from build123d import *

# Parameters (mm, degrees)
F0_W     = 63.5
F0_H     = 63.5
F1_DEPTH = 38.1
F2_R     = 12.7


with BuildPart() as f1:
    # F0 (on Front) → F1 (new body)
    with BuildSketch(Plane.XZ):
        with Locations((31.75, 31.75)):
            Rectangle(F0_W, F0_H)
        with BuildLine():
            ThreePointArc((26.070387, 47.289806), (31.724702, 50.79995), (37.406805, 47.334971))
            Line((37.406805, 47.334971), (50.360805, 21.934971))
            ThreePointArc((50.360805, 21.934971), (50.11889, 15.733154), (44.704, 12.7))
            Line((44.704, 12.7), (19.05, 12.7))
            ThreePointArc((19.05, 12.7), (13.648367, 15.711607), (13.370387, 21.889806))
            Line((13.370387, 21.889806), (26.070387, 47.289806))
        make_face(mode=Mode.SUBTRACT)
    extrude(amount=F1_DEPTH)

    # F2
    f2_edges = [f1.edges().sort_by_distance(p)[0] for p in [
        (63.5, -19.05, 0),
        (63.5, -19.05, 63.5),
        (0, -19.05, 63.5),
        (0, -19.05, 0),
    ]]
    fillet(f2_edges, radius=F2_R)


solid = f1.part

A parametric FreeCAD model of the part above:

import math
import FreeCAD as App
import Part
import Sketcher

V = App.Vector
Q = App.Units.Quantity


def edges_at(feature, points):
    """Names of the edges that pass closest to the given points."""
    edges = feature.Shape.Edges
    near = lambda p: min(range(len(edges)), key=lambda i: edges[i].distToShape(Part.Vertex(*p))[0])
    return sorted({f"Edge{near(p) + 1}" for p in points})


def add_polygon(sketch, points):
    """Adds a closed chain of lines whose ends are joined by coincident constraints."""
    first, n = sketch.GeometryCount, len(points)
    for a, b in zip(points, points[1:] + points[:1]):
        sketch.addGeometry(Part.LineSegment(App.Vector(*a, 0), App.Vector(*b, 0)), False)
    for i in range(n):
        sketch.addConstraint(Sketcher.Constraint("Coincident", first + i, 2, first + (i + 1) % n, 1))

doc = App.newDocument("Part")
params = doc.addObject("Spreadsheet::Sheet", "Params")
for row, (alias, value) in enumerate([
    ("sketch1_radius", "0.25 in"),
    ("sketch1_width", "2.5 in"),
    ("sketch1_width2", "1.01 in"),
    ("pad1_length", "1.5 in"),
    ("fillet_radius", "0.5 in"),
], start=1):
    params.set(f"A{row}", alias)
    params.set(f"B{row}", "=" + value)
    params.setAlias(f"B{row}", alias)

body = doc.addObject("PartDesign::Body", "Body")

sketch1 = body.newObject("Sketcher::SketchObject", "Sketch")
sketch1.AttachmentSupport = (doc.getObject("XZ_Plane"), [""])
sketch1.MapMode = "FlatFace"
add_polygon(sketch1, [(0, 64), (0, 0), (64, 0), (64, 64)])
sketch1.addGeometry(Part.LineSegment(V(13, 22, 0), V(26, 47, 0)), False)
sketch1.addGeometry(Part.ArcOfCircle(Part.Circle(V(32, 44, 0), V(0, 0, 1), 6), math.radians(27), math.radians(153)), False)
sketch1.addGeometry(Part.LineSegment(V(37, 47, 0), V(50, 22, 0)), False)
sketch1.addGeometry(Part.ArcOfCircle(Part.Circle(V(45, 19, 0), V(0, 0, 1), 6), math.radians(-90), math.radians(27)), False)
sketch1.addGeometry(Part.LineSegment(V(45, 13, 0), V(19, 13, 0)), False)
sketch1.addGeometry(Part.ArcOfCircle(Part.Circle(V(19, 19, 0), V(0, 0, 1), 6), math.radians(153), math.radians(270)), False)
sketch1.addConstraint([
    Sketcher.Constraint("Tangent", 4, 2, 5, 2),
    Sketcher.Constraint("Tangent", 5, 1, 6, 1),
    Sketcher.Constraint("Tangent", 6, 2, 7, 2),
    Sketcher.Constraint("Tangent", 7, 1, 8, 1),
    Sketcher.Constraint("Tangent", 8, 2, 9, 2),
    Sketcher.Constraint("Tangent", 9, 1, 4, 1),
    Sketcher.Constraint("Vertical", 0),
    Sketcher.Constraint("Horizontal", 1),
    Sketcher.Constraint("Vertical", 2),
    Sketcher.Constraint("Horizontal", 3),
    Sketcher.Constraint("Horizontal", 8),
    Sketcher.Constraint("Coincident", 0, 2, -1, 1),
    Sketcher.Constraint("Equal", 5, 7),
    Sketcher.Constraint("Equal", 7, 9),
    Sketcher.Constraint("Equal", 3, 0),
    Sketcher.Constraint("Radius", 5, Q("0.25 in")),
    Sketcher.Constraint("DistanceX", 1, 1, 1, 2, Q("2.5 in")),
    Sketcher.Constraint("DistanceY", 7, 3, 5, 3, Q("1 in")),
    Sketcher.Constraint("DistanceX", 8, 2, 8, 1, Q("1.01 in")),
    Sketcher.Constraint("DistanceY", -1, 1, 7, 1, Q("0.5 in")),
    Sketcher.Constraint("DistanceX", 9, 3, 5, 3, Q("0.5 in")),
    Sketcher.Constraint("DistanceX", -1, 1, 5, 3, Q("1.25 in")),
])
sketch1.setExpression("Constraints[19]", "Params.sketch1_radius")
sketch1.setExpression("Constraints[20]", "Params.sketch1_width")
sketch1.setExpression("Constraints[22]", "Params.sketch1_width2")
pad1 = body.newObject("PartDesign::Pad", "Pad")
pad1.Profile = sketch1
pad1.setExpression("Length", "Params.pad1_length")
doc.recompute()

fillet = body.newObject("PartDesign::Fillet", "Fillet")
fillet.Base = (pad1, edges_at(pad1, [
    (63.5, -19.05, 0),
    (63.5, -19.05, 63.5),
    (0, -19.05, 63.5),
    (0, -19.05, 0),
]))
fillet.setExpression("Radius", "Params.fillet_radius")

doc.recompute()
